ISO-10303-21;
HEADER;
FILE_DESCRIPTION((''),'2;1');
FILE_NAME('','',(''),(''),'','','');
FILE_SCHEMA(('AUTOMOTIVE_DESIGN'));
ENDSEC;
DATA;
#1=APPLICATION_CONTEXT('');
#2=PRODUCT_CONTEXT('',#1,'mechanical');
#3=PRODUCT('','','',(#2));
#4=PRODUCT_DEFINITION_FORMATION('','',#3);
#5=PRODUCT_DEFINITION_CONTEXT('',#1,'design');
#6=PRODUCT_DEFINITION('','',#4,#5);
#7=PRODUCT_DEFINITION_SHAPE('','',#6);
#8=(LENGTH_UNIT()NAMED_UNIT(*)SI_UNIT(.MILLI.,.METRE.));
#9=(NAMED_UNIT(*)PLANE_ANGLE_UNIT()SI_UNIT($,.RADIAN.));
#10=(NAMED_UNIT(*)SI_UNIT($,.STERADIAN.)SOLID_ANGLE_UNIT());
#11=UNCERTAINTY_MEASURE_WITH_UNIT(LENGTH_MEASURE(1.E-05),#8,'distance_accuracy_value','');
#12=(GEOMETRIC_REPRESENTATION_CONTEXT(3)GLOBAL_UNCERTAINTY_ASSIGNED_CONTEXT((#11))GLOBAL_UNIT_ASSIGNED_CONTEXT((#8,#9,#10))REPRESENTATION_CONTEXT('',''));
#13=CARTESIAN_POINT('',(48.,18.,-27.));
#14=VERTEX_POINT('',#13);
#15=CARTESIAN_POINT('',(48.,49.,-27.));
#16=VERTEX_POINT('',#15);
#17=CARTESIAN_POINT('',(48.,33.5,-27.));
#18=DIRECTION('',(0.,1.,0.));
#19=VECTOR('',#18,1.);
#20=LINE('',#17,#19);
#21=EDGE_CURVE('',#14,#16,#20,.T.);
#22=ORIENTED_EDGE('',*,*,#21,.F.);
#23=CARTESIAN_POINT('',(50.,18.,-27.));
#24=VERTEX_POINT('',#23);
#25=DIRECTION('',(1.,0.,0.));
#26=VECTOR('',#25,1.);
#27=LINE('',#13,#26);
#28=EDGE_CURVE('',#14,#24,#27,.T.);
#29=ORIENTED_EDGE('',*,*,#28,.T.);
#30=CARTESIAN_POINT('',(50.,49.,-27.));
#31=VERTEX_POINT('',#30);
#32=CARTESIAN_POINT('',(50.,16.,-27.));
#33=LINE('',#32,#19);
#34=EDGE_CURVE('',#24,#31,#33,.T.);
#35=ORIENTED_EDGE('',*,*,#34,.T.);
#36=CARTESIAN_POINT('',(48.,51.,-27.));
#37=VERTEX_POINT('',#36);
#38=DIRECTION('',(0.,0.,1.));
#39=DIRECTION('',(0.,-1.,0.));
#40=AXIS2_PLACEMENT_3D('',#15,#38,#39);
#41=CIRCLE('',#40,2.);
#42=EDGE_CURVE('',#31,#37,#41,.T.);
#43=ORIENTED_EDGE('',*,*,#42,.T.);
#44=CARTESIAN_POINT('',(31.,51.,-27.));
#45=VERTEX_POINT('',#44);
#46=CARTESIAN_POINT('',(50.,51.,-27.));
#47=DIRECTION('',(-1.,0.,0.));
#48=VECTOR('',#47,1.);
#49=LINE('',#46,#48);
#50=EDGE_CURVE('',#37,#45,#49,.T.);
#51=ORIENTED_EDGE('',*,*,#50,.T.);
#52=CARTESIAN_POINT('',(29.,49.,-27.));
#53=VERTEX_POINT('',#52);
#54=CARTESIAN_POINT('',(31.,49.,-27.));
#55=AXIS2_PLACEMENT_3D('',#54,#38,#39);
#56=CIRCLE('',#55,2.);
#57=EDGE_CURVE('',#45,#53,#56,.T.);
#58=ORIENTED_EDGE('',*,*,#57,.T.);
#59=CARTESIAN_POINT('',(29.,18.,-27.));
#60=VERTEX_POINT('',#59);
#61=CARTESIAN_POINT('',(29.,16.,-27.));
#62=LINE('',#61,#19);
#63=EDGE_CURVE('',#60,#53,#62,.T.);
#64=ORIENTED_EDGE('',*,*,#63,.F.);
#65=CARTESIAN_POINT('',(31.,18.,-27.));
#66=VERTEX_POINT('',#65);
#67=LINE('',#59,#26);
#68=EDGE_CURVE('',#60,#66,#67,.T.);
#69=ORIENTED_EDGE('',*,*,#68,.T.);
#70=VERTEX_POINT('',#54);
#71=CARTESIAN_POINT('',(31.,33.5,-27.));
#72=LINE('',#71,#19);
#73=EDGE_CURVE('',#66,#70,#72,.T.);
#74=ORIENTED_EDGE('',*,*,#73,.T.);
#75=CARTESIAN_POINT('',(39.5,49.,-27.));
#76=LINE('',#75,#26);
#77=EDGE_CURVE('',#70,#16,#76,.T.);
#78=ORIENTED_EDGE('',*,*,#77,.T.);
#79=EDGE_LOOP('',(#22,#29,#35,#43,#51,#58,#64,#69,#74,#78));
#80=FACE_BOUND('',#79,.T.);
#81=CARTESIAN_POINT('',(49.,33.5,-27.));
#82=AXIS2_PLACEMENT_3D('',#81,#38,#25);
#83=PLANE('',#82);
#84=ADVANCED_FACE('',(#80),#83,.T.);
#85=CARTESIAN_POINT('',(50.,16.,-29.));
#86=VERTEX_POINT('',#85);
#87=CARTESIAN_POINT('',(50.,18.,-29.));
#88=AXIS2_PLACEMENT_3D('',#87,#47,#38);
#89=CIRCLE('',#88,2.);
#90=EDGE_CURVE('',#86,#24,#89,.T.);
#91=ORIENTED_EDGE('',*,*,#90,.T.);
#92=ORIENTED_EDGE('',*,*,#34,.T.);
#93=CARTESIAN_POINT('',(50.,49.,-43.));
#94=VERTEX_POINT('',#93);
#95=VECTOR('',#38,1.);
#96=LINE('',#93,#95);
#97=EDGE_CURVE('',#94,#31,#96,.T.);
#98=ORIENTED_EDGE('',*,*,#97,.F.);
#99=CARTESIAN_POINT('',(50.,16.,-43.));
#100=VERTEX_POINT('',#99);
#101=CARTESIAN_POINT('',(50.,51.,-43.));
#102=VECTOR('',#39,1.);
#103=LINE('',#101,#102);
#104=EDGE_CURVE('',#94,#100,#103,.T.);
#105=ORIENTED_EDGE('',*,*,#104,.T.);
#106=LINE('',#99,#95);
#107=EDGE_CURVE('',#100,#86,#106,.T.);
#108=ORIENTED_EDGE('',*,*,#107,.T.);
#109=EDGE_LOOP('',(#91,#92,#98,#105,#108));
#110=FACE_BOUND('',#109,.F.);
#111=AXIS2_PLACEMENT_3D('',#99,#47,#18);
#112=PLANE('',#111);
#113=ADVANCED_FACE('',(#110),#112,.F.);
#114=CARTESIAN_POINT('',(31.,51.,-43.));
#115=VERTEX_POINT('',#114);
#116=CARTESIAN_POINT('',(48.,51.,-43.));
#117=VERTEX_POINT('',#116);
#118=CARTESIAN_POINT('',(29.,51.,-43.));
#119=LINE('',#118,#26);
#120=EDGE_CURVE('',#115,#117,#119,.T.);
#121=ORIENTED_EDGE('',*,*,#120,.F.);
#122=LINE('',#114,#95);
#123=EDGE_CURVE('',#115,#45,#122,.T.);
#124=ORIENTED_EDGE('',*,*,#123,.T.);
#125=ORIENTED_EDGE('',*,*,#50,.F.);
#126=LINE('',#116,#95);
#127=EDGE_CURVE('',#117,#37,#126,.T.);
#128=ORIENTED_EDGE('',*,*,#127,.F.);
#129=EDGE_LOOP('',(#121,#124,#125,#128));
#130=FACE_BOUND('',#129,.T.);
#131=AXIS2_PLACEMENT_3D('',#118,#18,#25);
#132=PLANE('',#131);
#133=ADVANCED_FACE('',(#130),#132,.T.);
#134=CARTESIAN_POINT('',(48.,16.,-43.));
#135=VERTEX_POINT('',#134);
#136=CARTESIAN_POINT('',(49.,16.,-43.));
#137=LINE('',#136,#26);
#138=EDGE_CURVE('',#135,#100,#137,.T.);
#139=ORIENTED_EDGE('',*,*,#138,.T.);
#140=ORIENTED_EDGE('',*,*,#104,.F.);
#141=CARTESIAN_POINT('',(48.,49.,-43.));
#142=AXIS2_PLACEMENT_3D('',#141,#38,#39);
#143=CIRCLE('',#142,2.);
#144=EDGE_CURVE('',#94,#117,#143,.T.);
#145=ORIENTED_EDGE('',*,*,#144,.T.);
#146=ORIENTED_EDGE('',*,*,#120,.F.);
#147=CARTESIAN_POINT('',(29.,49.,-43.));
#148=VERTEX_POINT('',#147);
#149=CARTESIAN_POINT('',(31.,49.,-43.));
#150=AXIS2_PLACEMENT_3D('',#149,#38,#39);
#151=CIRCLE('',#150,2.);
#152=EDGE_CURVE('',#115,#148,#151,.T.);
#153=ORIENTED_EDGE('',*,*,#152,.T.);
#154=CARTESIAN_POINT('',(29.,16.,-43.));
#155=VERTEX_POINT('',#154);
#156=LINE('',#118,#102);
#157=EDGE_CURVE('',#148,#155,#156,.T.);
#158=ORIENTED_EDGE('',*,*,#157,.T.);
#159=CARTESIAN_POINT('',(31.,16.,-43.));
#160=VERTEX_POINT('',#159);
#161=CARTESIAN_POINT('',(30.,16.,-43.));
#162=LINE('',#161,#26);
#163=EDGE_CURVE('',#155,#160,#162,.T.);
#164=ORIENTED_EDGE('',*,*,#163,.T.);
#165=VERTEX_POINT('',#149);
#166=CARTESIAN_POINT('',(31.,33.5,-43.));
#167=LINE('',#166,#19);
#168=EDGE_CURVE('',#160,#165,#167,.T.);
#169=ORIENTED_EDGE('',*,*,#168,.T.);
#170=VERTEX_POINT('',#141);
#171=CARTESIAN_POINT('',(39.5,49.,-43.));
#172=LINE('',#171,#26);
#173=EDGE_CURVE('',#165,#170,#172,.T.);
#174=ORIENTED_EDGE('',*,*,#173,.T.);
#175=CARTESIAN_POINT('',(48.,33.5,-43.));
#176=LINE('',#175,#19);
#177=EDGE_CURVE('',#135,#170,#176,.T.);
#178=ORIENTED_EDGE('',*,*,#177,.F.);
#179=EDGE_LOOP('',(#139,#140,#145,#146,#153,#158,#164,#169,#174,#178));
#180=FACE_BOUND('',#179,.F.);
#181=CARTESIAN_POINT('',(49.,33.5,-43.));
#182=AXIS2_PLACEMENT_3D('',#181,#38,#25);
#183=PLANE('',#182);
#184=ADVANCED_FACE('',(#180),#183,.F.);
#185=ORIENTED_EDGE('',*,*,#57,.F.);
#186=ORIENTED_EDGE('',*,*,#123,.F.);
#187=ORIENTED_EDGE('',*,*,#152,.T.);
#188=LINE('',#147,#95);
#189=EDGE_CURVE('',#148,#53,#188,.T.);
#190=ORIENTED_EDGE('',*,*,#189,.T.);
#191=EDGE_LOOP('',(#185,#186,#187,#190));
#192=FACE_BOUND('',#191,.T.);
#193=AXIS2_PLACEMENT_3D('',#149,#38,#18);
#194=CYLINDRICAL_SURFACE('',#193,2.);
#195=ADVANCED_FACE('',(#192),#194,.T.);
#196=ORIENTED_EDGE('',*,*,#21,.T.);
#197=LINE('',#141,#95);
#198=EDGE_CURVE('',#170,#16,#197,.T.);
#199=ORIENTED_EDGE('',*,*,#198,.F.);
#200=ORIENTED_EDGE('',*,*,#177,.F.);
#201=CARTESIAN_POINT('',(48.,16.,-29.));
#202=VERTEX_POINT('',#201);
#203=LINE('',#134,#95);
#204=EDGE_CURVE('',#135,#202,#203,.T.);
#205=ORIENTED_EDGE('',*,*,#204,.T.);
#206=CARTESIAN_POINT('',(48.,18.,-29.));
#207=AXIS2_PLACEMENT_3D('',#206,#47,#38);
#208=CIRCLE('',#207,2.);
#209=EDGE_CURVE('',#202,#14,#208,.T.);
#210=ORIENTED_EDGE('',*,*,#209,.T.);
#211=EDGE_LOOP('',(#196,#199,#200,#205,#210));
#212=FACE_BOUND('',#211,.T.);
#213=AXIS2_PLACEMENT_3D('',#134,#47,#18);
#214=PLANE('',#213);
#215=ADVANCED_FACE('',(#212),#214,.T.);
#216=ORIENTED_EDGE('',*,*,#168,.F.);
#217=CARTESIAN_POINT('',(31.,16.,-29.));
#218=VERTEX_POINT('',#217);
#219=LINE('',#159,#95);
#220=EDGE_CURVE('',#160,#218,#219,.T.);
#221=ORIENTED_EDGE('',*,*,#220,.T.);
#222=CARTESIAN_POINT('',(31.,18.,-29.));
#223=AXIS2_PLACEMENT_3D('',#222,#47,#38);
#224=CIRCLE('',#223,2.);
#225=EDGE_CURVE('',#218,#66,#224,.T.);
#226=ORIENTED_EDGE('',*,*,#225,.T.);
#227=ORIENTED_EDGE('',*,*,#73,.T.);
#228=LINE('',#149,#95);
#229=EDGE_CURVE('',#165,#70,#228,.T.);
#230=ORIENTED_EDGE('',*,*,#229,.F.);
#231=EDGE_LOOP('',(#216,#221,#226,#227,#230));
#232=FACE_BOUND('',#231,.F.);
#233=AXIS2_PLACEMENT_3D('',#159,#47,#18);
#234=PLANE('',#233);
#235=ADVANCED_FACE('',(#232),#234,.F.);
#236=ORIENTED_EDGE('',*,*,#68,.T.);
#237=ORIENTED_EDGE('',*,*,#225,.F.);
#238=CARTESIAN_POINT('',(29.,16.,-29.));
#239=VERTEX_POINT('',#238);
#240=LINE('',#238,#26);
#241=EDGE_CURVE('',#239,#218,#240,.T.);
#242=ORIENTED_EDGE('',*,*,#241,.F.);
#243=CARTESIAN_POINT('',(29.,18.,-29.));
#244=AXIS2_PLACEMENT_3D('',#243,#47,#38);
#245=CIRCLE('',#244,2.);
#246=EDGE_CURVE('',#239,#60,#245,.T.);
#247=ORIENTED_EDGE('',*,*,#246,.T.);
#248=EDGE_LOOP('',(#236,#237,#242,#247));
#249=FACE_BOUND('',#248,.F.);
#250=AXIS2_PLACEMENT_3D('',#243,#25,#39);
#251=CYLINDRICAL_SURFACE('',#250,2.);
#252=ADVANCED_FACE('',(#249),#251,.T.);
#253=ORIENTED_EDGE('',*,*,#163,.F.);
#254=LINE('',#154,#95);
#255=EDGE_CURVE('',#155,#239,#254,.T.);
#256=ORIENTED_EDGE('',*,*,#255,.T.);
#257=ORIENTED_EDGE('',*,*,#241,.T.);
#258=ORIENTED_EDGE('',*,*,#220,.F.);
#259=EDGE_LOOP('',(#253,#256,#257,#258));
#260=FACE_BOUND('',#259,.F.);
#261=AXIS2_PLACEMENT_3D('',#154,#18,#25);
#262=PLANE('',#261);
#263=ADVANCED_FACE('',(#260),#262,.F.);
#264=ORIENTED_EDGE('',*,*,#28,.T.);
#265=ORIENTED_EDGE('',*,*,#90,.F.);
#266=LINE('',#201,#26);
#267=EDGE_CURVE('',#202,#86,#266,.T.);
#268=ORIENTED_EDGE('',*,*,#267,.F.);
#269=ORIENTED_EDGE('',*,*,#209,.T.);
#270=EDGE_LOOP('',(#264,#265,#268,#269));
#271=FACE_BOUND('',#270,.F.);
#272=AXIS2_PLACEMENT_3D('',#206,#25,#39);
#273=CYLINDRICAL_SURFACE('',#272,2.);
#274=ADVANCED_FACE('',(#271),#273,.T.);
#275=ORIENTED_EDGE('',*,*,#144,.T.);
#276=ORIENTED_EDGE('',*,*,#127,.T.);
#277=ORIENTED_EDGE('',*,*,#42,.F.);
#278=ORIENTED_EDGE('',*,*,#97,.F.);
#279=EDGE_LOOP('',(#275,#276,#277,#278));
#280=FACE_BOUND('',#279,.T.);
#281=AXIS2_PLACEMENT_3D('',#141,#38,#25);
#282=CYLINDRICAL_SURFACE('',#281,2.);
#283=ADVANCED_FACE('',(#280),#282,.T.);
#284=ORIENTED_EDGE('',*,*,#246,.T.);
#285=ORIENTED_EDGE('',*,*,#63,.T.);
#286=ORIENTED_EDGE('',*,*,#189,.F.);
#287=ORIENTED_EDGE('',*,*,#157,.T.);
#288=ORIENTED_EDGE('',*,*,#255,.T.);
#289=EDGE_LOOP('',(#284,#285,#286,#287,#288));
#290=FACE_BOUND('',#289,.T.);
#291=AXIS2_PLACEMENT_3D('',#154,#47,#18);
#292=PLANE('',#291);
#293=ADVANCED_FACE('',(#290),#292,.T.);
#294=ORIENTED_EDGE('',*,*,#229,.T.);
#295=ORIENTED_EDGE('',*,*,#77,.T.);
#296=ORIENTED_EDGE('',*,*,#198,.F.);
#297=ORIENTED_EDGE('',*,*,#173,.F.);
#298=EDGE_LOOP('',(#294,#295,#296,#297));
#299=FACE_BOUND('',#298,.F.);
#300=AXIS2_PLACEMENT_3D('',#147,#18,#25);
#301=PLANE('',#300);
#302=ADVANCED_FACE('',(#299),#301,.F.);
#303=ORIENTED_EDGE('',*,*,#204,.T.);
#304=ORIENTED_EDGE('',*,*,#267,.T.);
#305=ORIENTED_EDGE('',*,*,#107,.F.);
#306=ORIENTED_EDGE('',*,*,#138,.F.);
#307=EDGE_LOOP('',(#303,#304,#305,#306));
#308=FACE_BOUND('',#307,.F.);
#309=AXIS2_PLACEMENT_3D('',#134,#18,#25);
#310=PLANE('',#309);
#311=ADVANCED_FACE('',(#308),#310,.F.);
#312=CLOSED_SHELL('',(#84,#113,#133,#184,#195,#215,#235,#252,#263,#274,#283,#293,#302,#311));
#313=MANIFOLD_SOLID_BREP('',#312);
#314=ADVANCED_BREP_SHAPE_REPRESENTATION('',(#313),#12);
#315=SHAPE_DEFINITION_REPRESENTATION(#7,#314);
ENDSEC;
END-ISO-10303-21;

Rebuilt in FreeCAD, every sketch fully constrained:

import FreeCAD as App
import Part
import Sketcher


def edges_at(feature, points):
    """Names of the edges that pass closest to the given points."""
    edges = feature.Shape.Edges
    near = lambda p: min(range(len(edges)), key=lambda i: edges[i].distToShape(Part.Vertex(*p))[0])
    return sorted({f"Edge{near(p) + 1}" for p in points})

doc = App.newDocument("Part")
params = doc.addObject("Spreadsheet::Sheet", "Params")
for row, (alias, value) in enumerate([
    ("sketch1_width", "2 mm"),
    ("sketch1_height", "35 mm"),
    ("pad1_length", "16 mm"),
    ("sketch2_width", "2 mm"),
    ("sketch2_height", "35 mm"),
    ("pad2_length", "16 mm"),
    ("sketch3_width", "21 mm"),
    ("sketch3_height", "2 mm"),
    ("pad3_length", "16 mm"),
    ("fillet_radius", "2 mm"),
], start=1):
    params.set(f"A{row}", alias)
    params.set(f"B{row}", "=" + value)
    params.setAlias(f"B{row}", alias)

body = doc.addObject("PartDesign::Body", "Body")

# Sketch on XY plane
sketch1 = body.newObject("Sketcher::SketchObject", "Sketch")
sketch1.AttachmentSupport = (doc.getObject("XY_Plane"), [""])
sketch1.MapMode = "FlatFace"
sketch1.AttachmentOffset = App.Placement(App.Vector(0, 0, -46), App.Rotation())
sketch1.addGeometry([
    Part.LineSegment(App.Vector(29, 64, 0), App.Vector(29, 29, 0)),
    Part.LineSegment(App.Vector(29, 29, 0), App.Vector(31, 29, 0)),
    Part.LineSegment(App.Vector(31, 29, 0), App.Vector(31, 64, 0)),
    Part.LineSegment(App.Vector(31, 64, 0), App.Vector(29, 64, 0)),
], False)
sketch1.addConstraint([
    Sketcher.Constraint("Coincident", 0, 2, 1, 1),
    Sketcher.Constraint("Coincident", 1, 2, 2, 1),
    Sketcher.Constraint("Coincident", 2, 2, 3, 1),
    Sketcher.Constraint("Coincident", 3, 2, 0, 1),
    Sketcher.Constraint("Vertical", 0),
    Sketcher.Constraint("Horizontal", 1),
    Sketcher.Constraint("Vertical", 2),
    Sketcher.Constraint("Horizontal", 3),
    Sketcher.Constraint("DistanceX", 1, 1, 1, 2, 2.0),
    Sketcher.Constraint("DistanceY", 0, 2, 0, 1, 35.0),
    Sketcher.Constraint("DistanceX", -1, 1, 0, 2, 29.0),
    Sketcher.Constraint("DistanceY", -1, 1, 0, 2, 29.0),
])
sketch1.setExpression("Constraints[8]", "Params.sketch1_width")
sketch1.setExpression("Constraints[9]", "Params.sketch1_height")
pad1 = body.newObject("PartDesign::Pad", "Pad")
pad1.Profile = sketch1
pad1.setExpression("Length", "Params.pad1_length")
body2 = doc.addObject("PartDesign::Body", "Body001")

# Sketch on XY plane
sketch2 = body2.newObject("Sketcher::SketchObject", "Sketch001")
sketch2.AttachmentSupport = (doc.getObject("XY_Plane001"), [""])
sketch2.MapMode = "FlatFace"
sketch2.AttachmentOffset = App.Placement(App.Vector(0, 0, -46), App.Rotation())
sketch2.addGeometry([
    Part.LineSegment(App.Vector(48, 64, 0), App.Vector(48, 29, 0)),
    Part.LineSegment(App.Vector(48, 29, 0), App.Vector(50, 29, 0)),
    Part.LineSegment(App.Vector(50, 29, 0), App.Vector(50, 64, 0)),
    Part.LineSegment(App.Vector(50, 64, 0), App.Vector(48, 64, 0)),
], False)
sketch2.addConstraint([
    Sketcher.Constraint("Coincident", 0, 2, 1, 1),
    Sketcher.Constraint("Coincident", 1, 2, 2, 1),
    Sketcher.Constraint("Coincident", 2, 2, 3, 1),
    Sketcher.Constraint("Coincident", 3, 2, 0, 1),
    Sketcher.Constraint("Vertical", 0),
    Sketcher.Constraint("Horizontal", 1),
    Sketcher.Constraint("Vertical", 2),
    Sketcher.Constraint("Horizontal", 3),
    Sketcher.Constraint("DistanceX", 1, 1, 1, 2, 2.0),
    Sketcher.Constraint("DistanceY", 0, 2, 0, 1, 35.0),
    Sketcher.Constraint("DistanceX", -1, 1, 0, 2, 48.0),
    Sketcher.Constraint("DistanceY", -1, 1, 0, 2, 29.0),
])
sketch2.setExpression("Constraints[8]", "Params.sketch2_width")
sketch2.setExpression("Constraints[9]", "Params.sketch2_height")
pad2 = body2.newObject("PartDesign::Pad", "Pad001")
pad2.Profile = sketch2
pad2.setExpression("Length", "Params.pad2_length")
body3 = doc.addObject("PartDesign::Body", "Body002")

# Sketch on XY plane
sketch3 = body3.newObject("Sketcher::SketchObject", "Sketch002")
sketch3.AttachmentSupport = (doc.getObject("XY_Plane002"), [""])
sketch3.MapMode = "FlatFace"
sketch3.AttachmentOffset = App.Placement(App.Vector(0, 0, -46), App.Rotation())
sketch3.addGeometry([
    Part.LineSegment(App.Vector(29, 64, 0), App.Vector(29, 62, 0)),
    Part.LineSegment(App.Vector(29, 62, 0), App.Vector(50, 62, 0)),
    Part.LineSegment(App.Vector(50, 62, 0), App.Vector(50, 64, 0)),
    Part.LineSegment(App.Vector(50, 64, 0), App.Vector(29, 64, 0)),
], False)
sketch3.addConstraint([
    Sketcher.Constraint("Coincident", 0, 2, 1, 1),
    Sketcher.Constraint("Coincident", 1, 2, 2, 1),
    Sketcher.Constraint("Coincident", 2, 2, 3, 1),
    Sketcher.Constraint("Coincident", 3, 2, 0, 1),
    Sketcher.Constraint("Vertical", 0),
    Sketcher.Constraint("Horizontal", 1),
    Sketcher.Constraint("Vertical", 2),
    Sketcher.Constraint("Horizontal", 3),
    Sketcher.Constraint("DistanceX", 1, 1, 1, 2, 21.0),
    Sketcher.Constraint("DistanceY", 0, 2, 0, 1, 2.0),
    Sketcher.Constraint("DistanceX", -1, 1, 0, 2, 29.0),
    Sketcher.Constraint("DistanceY", -1, 1, 0, 2, 62.0),
])
sketch3.setExpression("Constraints[8]", "Params.sketch3_width")
sketch3.setExpression("Constraints[9]", "Params.sketch3_height")
pad3 = body3.newObject("PartDesign::Pad", "Pad002")
pad3.Profile = sketch3
pad3.setExpression("Length", "Params.pad3_length")
doc.recompute()

boolean = body3.newObject("PartDesign::Boolean", "Boolean")
boolean.Type = "Fuse"
boolean.addObjects([body])
doc.recompute()

boolean2 = body3.newObject("PartDesign::Boolean", "Boolean001")
boolean2.Type = "Fuse"
boolean2.addObjects([body2])
doc.recompute()

fillet = body3.newObject("PartDesign::Fillet", "Fillet")
fillet.Base = (boolean2, edges_at(boolean2, [
    (30, 29, -30),
    (49, 29, -30),
    (29, 64, -38),
    (50, 64, -38),
]))
fillet.setExpression("Radius", "Params.fillet_radius")
body4 = doc.addObject("PartDesign::Body", "Body003")
doc.recompute()

body3.Placement = App.Placement(App.Vector(0, -13, 3), App.Rotation(App.Vector(0, 0, 1), 0))
boolean3 = body4.newObject("PartDesign::Boolean", "Boolean002")
boolean3.Type = "Fuse"
boolean3.addObjects([body3])

doc.recompute()
